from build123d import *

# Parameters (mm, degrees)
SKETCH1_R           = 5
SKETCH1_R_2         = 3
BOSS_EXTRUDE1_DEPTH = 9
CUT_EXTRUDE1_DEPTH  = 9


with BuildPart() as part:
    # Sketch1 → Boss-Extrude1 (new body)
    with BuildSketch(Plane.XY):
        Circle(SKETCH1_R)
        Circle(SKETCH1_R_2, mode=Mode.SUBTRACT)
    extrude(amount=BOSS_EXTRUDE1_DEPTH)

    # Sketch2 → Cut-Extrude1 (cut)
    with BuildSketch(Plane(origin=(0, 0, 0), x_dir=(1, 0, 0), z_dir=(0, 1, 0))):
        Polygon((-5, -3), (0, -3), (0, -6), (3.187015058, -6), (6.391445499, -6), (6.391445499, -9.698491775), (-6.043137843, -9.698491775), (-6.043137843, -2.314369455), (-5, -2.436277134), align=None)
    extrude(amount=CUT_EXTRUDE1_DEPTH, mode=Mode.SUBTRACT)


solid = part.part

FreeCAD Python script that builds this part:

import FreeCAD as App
import Part
import Sketcher

V = App.Vector
Q = App.Units.Quantity

doc = App.newDocument("Part")
body = doc.addObject("PartDesign::Body", "Body")

sketch1 = body.newObject("Sketcher::SketchObject", "Sketch")
sketch1.AttachmentSupport = (doc.getObject("XY_Plane"), [""])
sketch1.MapMode = "FlatFace"
sketch1.addGeometry([
    Part.Circle(V(0, 0, 0), V(0, 0, 1), 5),
    Part.Circle(V(0, 0, 0), V(0, 0, 1), 3),
], False)
sketch1.addConstraint([
    Sketcher.Constraint("Coincident", 0, 3, -1, 1),
    Sketcher.Constraint("Coincident", 1, 3, -1, 1),
    Sketcher.Constraint("Diameter", 0, Q("10 mm")),
    Sketcher.Constraint("Diameter", 1, Q("6 mm")),
])
pad1 = body.newObject("PartDesign::Pad", "Pad")
pad1.Profile = sketch1
pad1.Length = 9

sketch2 = body.newObject("Sketcher::SketchObject", "Sketch001")
sketch2.AttachmentSupport = (doc.getObject("XZ_Plane"), [""])
sketch2.MapMode = "FlatFace"
sketch2.addGeometry([
    Part.LineSegment(V(0, 3, 0), V(-5, 3, 0)),
    Part.LineSegment(V(-5, 3, 0), V(-5, 2.4, 0)),
    Part.LineSegment(V(-5, 2.4, 0), V(-6, 2.3, 0)),
    Part.LineSegment(V(-6, 2.3, 0), V(-6, 9.7, 0)),
    Part.LineSegment(V(-6, 9.7, 0), V(6.4, 9.7, 0)),
    Part.LineSegment(V(6.4, 9.7, 0), V(6.4, 6, 0)),
    Part.LineSegment(V(6.4, 6, 0), V(0, 6, 0)),
    Part.LineSegment(V(0, 6, 0), V(0, 3, 0)),
], False)
sketch2.addConstraint([
    Sketcher.Constraint("Coincident", 0, 2, 1, 1),
    Sketcher.Constraint("Coincident", 1, 2, 2, 1),
    Sketcher.Constraint("Coincident", 2, 2, 3, 1),
    Sketcher.Constraint("Coincident", 3, 2, 4, 1),
    Sketcher.Constraint("Coincident", 4, 2, 5, 1),
    Sketcher.Constraint("Coincident", 5, 2, 6, 1),
    Sketcher.Constraint("Coincident", 6, 2, 7, 1),
    Sketcher.Constraint("Coincident", 7, 2, 0, 1),
    Sketcher.Constraint("Horizontal", 0),
    Sketcher.Constraint("Vertical", 1),
    Sketcher.Constraint("Vertical", 3),
    Sketcher.Constraint("Horizontal", 4),
    Sketcher.Constraint("Vertical", 5),
    Sketcher.Constraint("Horizontal", 6),
    Sketcher.Constraint("Vertical", 7),
    Sketcher.Constraint("PointOnObject", 6, 2, -2),
    Sketcher.Constraint("DistanceX", 0, 2, 0, 1, Q("5 mm")),
    Sketcher.Constraint("DistanceY", 7, 2, 7, 1, Q("3 mm")),
    Sketcher.Constraint("DistanceY", -1, 1, 0, 2, Q("3 mm")),
    Sketcher.Constraint("DistanceY", 5, 2, 5, 1, Q("3.698492 mm")),
    Sketcher.Constraint("DistanceX", 4, 1, 4, 2, Q("12.434583 mm")),
    Sketcher.Constraint("DistanceX", 6, 2, 6, 1, Q("6.391445 mm")),
    Sketcher.Constraint("DistanceY", 1, 2, 1, 1, Q("0.563723 mm")),
    Sketcher.Constraint("DistanceY", 3, 1, 3, 2, Q("7.384122 mm")),
])
pocket1 = body.newObject("PartDesign::Pocket", "Pocket")
pocket1.Profile = sketch2
pocket1.Length = 9

doc.recompute()
